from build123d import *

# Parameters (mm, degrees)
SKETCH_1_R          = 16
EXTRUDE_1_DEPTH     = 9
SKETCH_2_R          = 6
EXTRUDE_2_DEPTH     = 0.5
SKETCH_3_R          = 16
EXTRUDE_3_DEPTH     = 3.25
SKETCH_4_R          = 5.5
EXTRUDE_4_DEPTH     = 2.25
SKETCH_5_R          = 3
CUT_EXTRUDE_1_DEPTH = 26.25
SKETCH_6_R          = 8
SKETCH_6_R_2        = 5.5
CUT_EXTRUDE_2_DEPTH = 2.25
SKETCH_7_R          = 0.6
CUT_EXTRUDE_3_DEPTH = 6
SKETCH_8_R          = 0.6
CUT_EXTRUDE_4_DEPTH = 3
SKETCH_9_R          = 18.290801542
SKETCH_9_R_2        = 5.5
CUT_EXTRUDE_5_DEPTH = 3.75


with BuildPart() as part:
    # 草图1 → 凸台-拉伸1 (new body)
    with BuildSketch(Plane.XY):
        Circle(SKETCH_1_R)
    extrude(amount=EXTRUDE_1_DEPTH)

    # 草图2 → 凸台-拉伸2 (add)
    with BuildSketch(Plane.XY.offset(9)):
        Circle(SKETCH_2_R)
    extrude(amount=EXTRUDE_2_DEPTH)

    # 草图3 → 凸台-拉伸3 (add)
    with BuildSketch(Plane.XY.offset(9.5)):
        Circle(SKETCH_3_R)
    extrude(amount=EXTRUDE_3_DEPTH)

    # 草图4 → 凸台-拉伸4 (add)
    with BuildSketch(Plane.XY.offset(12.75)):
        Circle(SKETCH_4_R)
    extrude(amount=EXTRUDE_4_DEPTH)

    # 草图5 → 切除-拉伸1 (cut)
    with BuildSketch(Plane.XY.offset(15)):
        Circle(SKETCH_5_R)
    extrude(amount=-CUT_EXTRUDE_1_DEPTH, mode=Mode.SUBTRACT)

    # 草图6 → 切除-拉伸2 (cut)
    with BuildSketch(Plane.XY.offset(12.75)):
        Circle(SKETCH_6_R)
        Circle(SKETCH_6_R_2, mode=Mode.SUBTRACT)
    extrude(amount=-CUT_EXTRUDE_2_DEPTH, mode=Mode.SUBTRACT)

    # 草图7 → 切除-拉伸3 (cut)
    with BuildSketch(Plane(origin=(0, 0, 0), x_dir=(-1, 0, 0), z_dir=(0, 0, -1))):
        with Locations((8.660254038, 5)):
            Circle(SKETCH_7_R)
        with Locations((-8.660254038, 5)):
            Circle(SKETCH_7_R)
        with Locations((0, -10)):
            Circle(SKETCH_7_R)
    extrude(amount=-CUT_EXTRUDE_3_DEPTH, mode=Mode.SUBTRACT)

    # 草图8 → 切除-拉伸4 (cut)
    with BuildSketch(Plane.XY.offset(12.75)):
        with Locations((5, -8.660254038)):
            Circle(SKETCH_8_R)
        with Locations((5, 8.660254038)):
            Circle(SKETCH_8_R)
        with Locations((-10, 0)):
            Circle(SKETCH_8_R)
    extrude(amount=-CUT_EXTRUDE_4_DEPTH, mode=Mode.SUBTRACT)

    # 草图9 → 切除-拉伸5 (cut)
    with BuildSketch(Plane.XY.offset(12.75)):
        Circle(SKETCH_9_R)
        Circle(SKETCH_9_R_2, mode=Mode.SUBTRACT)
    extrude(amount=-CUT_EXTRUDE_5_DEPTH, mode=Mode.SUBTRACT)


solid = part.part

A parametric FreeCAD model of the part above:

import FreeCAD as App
import Part
import Sketcher

V = App.Vector
Q = App.Units.Quantity

doc = App.newDocument("Part")
body = doc.addObject("PartDesign::Body", "Body")

# Sketch on XY plane
sketch1 = body.newObject("Sketcher::SketchObject", "Sketch")
sketch1.AttachmentSupport = (doc.getObject("XY_Plane"), [""])
sketch1.MapMode = "FlatFace"
sketch1.addGeometry(Part.Circle(V(0, 0, 0), V(0, 0, 1), 16), False)
sketch1.addConstraint([
    Sketcher.Constraint("Coincident", 0, 3, -1, 1),
    Sketcher.Constraint("Diameter", 0, Q("32 mm")),
])
pad1 = body.newObject("PartDesign::Pad", "Pad")
pad1.Profile = sketch1
pad1.Length = 9

# Sketch on XY plane
sketch2 = body.newObject("Sketcher::SketchObject", "Sketch001")
sketch2.AttachmentSupport = (doc.getObject("XY_Plane"), [""])
sketch2.MapMode = "FlatFace"
sketch2.AttachmentOffset = App.Placement(V(0, 0, 9), App.Rotation())
sketch2.addGeometry(Part.Circle(V(0, 0, 0), V(0, 0, 1), 6), False)
sketch2.addConstraint([
    Sketcher.Constraint("Coincident", 0, 3, -1, 1),
    Sketcher.Constraint("Diameter", 0, Q("12 mm")),
])
pad2 = body.newObject("PartDesign::Pad", "Pad001")
pad2.Profile = sketch2
pad2.Length = 0.5

# Sketch on XY plane
sketch3 = body.newObject("Sketcher::SketchObject", "Sketch002")
sketch3.AttachmentSupport = (doc.getObject("XY_Plane"), [""])
sketch3.MapMode = "FlatFace"
sketch3.AttachmentOffset = App.Placement(V(0, 0, 9.5), App.Rotation())
sketch3.addGeometry(Part.Circle(V(0, 0, 0), V(0, 0, 1), 16), False)
sketch3.addConstraint([
    Sketcher.Constraint("Coincident", 0, 3, -1, 1),
    Sketcher.Constraint("Diameter", 0, Q("32 mm")),
])
pad3 = body.newObject("PartDesign::Pad", "Pad002")
pad3.Profile = sketch3
pad3.Length = 3.25

# Sketch on XY plane
sketch4 = body.newObject("Sketcher::SketchObject", "Sketch003")
sketch4.AttachmentSupport = (doc.getObject("XY_Plane"), [""])
sketch4.MapMode = "FlatFace"
sketch4.AttachmentOffset = App.Placement(V(0, 0, 12.75), App.Rotation())
sketch4.addGeometry(Part.Circle(V(0, 0, 0), V(0, 0, 1), 6), False)
sketch4.addConstraint([
    Sketcher.Constraint("Coincident", 0, 3, -1, 1),
    Sketcher.Constraint("Diameter", 0, Q("11 mm")),
])
pad4 = body.newObject("PartDesign::Pad", "Pad003")
pad4.Profile = sketch4
pad4.Length = 2.25

# Sketch on XY plane
sketch5 = body.newObject("Sketcher::SketchObject", "Sketch004")
sketch5.AttachmentSupport = (doc.getObject("XY_Plane"), [""])
sketch5.MapMode = "FlatFace"
sketch5.AttachmentOffset = App.Placement(V(0, 0, 15), App.Rotation())
sketch5.addGeometry(Part.Circle(V(0, 0, 0), V(0, 0, 1), 3), False)
sketch5.addConstraint([
    Sketcher.Constraint("Coincident", 0, 3, -1, 1),
    Sketcher.Constraint("Diameter", 0, Q("6 mm")),
])
pocket1 = body.newObject("PartDesign::Pocket", "Pocket")
pocket1.Profile = sketch5
pocket1.Length = 26.25

# Sketch on XY plane
sketch6 = body.newObject("Sketcher::SketchObject", "Sketch005")
sketch6.AttachmentSupport = (doc.getObject("XY_Plane"), [""])
sketch6.MapMode = "FlatFace"
sketch6.AttachmentOffset = App.Placement(V(0, 0, 12.75), App.Rotation())
sketch6.addGeometry([
    Part.Circle(V(0, 0, 0), V(0, 0, 1), 8),
    Part.Circle(V(0, 0, 0), V(0, 0, 1), 6),
], False)
sketch6.addConstraint([
    Sketcher.Constraint("Coincident", 0, 3, -1, 1),
    Sketcher.Constraint("Coincident", 1, 3, -1, 1),
    Sketcher.Constraint("Diameter", 0, Q("16 mm")),
    Sketcher.Constraint("Diameter", 1, Q("11 mm")),
])
pocket2 = body.newObject("PartDesign::Pocket", "Pocket001")
pocket2.Profile = sketch6
pocket2.Length = 2.25

# Sketch on XY plane
sketch7 = body.newObject("Sketcher::SketchObject", "Sketch006")
sketch7.AttachmentSupport = (doc.getObject("XY_Plane"), [""])
sketch7.MapMode = "FlatFace"
sketch7.addGeometry([
    Part.Circle(V(-8.7, 5, 0), V(0, 0, 1), 0.6),
    Part.Circle(V(8.7, 5, 0), V(0, 0, 1), 0.6),
    Part.Circle(V(0, -10, 0), V(0, 0, 1), 0.6),
], False)
sketch7.addConstraint([
    Sketcher.Constraint("Equal", 0, 1),
    Sketcher.Constraint("Equal", 1, 2),
    Sketcher.Constraint("Symmetric", 0, 3, 1, 3, -2),
    Sketcher.Constraint("PointOnObject", 2, 3, -2),
    Sketcher.Constraint("Diameter", 0, Q("1.2 mm")),
    Sketcher.Constraint("DistanceY", -1, 1, 0, 3, Q("5 mm")),
    Sketcher.Constraint("DistanceY", 2, 3, -1, 1, Q("10 mm")),
    Sketcher.Constraint("DistanceX", 0, 3, 1, 3, Q("17.320508 mm")),
])
pocket3 = body.newObject("PartDesign::Pocket", "Pocket002")
pocket3.Profile = sketch7
pocket3.Length = 6
pocket3.Reversed = True

# Sketch on XY plane
sketch8 = body.newObject("Sketcher::SketchObject", "Sketch007")
sketch8.AttachmentSupport = (doc.getObject("XY_Plane"), [""])
sketch8.MapMode = "FlatFace"
sketch8.AttachmentOffset = App.Placement(V(0, 0, 12.75), App.Rotation())
sketch8.addGeometry([
    Part.Circle(V(5, -8.7, 0), V(0, 0, 1), 0.6),
    Part.Circle(V(5, 8.7, 0), V(0, 0, 1), 0.6),
    Part.Circle(V(-10, 0, 0), V(0, 0, 1), 0.6),
], False)
sketch8.addConstraint([
    Sketcher.Constraint("Equal", 0, 1),
    Sketcher.Constraint("Equal", 1, 2),
    Sketcher.Constraint("Symmetric", 0, 3, 1, 3, -1),
    Sketcher.Constraint("PointOnObject", 2, 3, -1),
    Sketcher.Constraint("Diameter", 0, Q("1.2 mm")),
    Sketcher.Constraint("DistanceX", -1, 1, 0, 3, Q("5 mm")),
    Sketcher.Constraint("DistanceX", 2, 3, -1, 1, Q("10 mm")),
    Sketcher.Constraint("DistanceY", 0, 3, 1, 3, Q("17.320508 mm")),
])
pocket4 = body.newObject("PartDesign::Pocket", "Pocket003")
pocket4.Profile = sketch8
pocket4.Length = 3

# Sketch on XY plane
sketch9 = body.newObject("Sketcher::SketchObject", "Sketch008")
sketch9.AttachmentSupport = (doc.getObject("XY_Plane"), [""])
sketch9.MapMode = "FlatFace"
sketch9.AttachmentOffset = App.Placement(V(0, 0, 12.75), App.Rotation())
sketch9.addGeometry([
    Part.Circle(V(0, 0, 0), V(0, 0, 1), 18),
    Part.Circle(V(0, 0, 0), V(0, 0, 1), 6),
], False)
sketch9.addConstraint([
    Sketcher.Constraint("Coincident", 0, 3, -1, 1),
    Sketcher.Constraint("Coincident", 1, 3, -1, 1),
    Sketcher.Constraint("Diameter", 1, Q("11 mm")),
    Sketcher.Constraint("Diameter", 0, Q("36.581603 mm")),
])
pocket5 = body.newObject("PartDesign::Pocket", "Pocket004")
pocket5.Profile = sketch9
pocket5.Length = 3.75

doc.recompute()
